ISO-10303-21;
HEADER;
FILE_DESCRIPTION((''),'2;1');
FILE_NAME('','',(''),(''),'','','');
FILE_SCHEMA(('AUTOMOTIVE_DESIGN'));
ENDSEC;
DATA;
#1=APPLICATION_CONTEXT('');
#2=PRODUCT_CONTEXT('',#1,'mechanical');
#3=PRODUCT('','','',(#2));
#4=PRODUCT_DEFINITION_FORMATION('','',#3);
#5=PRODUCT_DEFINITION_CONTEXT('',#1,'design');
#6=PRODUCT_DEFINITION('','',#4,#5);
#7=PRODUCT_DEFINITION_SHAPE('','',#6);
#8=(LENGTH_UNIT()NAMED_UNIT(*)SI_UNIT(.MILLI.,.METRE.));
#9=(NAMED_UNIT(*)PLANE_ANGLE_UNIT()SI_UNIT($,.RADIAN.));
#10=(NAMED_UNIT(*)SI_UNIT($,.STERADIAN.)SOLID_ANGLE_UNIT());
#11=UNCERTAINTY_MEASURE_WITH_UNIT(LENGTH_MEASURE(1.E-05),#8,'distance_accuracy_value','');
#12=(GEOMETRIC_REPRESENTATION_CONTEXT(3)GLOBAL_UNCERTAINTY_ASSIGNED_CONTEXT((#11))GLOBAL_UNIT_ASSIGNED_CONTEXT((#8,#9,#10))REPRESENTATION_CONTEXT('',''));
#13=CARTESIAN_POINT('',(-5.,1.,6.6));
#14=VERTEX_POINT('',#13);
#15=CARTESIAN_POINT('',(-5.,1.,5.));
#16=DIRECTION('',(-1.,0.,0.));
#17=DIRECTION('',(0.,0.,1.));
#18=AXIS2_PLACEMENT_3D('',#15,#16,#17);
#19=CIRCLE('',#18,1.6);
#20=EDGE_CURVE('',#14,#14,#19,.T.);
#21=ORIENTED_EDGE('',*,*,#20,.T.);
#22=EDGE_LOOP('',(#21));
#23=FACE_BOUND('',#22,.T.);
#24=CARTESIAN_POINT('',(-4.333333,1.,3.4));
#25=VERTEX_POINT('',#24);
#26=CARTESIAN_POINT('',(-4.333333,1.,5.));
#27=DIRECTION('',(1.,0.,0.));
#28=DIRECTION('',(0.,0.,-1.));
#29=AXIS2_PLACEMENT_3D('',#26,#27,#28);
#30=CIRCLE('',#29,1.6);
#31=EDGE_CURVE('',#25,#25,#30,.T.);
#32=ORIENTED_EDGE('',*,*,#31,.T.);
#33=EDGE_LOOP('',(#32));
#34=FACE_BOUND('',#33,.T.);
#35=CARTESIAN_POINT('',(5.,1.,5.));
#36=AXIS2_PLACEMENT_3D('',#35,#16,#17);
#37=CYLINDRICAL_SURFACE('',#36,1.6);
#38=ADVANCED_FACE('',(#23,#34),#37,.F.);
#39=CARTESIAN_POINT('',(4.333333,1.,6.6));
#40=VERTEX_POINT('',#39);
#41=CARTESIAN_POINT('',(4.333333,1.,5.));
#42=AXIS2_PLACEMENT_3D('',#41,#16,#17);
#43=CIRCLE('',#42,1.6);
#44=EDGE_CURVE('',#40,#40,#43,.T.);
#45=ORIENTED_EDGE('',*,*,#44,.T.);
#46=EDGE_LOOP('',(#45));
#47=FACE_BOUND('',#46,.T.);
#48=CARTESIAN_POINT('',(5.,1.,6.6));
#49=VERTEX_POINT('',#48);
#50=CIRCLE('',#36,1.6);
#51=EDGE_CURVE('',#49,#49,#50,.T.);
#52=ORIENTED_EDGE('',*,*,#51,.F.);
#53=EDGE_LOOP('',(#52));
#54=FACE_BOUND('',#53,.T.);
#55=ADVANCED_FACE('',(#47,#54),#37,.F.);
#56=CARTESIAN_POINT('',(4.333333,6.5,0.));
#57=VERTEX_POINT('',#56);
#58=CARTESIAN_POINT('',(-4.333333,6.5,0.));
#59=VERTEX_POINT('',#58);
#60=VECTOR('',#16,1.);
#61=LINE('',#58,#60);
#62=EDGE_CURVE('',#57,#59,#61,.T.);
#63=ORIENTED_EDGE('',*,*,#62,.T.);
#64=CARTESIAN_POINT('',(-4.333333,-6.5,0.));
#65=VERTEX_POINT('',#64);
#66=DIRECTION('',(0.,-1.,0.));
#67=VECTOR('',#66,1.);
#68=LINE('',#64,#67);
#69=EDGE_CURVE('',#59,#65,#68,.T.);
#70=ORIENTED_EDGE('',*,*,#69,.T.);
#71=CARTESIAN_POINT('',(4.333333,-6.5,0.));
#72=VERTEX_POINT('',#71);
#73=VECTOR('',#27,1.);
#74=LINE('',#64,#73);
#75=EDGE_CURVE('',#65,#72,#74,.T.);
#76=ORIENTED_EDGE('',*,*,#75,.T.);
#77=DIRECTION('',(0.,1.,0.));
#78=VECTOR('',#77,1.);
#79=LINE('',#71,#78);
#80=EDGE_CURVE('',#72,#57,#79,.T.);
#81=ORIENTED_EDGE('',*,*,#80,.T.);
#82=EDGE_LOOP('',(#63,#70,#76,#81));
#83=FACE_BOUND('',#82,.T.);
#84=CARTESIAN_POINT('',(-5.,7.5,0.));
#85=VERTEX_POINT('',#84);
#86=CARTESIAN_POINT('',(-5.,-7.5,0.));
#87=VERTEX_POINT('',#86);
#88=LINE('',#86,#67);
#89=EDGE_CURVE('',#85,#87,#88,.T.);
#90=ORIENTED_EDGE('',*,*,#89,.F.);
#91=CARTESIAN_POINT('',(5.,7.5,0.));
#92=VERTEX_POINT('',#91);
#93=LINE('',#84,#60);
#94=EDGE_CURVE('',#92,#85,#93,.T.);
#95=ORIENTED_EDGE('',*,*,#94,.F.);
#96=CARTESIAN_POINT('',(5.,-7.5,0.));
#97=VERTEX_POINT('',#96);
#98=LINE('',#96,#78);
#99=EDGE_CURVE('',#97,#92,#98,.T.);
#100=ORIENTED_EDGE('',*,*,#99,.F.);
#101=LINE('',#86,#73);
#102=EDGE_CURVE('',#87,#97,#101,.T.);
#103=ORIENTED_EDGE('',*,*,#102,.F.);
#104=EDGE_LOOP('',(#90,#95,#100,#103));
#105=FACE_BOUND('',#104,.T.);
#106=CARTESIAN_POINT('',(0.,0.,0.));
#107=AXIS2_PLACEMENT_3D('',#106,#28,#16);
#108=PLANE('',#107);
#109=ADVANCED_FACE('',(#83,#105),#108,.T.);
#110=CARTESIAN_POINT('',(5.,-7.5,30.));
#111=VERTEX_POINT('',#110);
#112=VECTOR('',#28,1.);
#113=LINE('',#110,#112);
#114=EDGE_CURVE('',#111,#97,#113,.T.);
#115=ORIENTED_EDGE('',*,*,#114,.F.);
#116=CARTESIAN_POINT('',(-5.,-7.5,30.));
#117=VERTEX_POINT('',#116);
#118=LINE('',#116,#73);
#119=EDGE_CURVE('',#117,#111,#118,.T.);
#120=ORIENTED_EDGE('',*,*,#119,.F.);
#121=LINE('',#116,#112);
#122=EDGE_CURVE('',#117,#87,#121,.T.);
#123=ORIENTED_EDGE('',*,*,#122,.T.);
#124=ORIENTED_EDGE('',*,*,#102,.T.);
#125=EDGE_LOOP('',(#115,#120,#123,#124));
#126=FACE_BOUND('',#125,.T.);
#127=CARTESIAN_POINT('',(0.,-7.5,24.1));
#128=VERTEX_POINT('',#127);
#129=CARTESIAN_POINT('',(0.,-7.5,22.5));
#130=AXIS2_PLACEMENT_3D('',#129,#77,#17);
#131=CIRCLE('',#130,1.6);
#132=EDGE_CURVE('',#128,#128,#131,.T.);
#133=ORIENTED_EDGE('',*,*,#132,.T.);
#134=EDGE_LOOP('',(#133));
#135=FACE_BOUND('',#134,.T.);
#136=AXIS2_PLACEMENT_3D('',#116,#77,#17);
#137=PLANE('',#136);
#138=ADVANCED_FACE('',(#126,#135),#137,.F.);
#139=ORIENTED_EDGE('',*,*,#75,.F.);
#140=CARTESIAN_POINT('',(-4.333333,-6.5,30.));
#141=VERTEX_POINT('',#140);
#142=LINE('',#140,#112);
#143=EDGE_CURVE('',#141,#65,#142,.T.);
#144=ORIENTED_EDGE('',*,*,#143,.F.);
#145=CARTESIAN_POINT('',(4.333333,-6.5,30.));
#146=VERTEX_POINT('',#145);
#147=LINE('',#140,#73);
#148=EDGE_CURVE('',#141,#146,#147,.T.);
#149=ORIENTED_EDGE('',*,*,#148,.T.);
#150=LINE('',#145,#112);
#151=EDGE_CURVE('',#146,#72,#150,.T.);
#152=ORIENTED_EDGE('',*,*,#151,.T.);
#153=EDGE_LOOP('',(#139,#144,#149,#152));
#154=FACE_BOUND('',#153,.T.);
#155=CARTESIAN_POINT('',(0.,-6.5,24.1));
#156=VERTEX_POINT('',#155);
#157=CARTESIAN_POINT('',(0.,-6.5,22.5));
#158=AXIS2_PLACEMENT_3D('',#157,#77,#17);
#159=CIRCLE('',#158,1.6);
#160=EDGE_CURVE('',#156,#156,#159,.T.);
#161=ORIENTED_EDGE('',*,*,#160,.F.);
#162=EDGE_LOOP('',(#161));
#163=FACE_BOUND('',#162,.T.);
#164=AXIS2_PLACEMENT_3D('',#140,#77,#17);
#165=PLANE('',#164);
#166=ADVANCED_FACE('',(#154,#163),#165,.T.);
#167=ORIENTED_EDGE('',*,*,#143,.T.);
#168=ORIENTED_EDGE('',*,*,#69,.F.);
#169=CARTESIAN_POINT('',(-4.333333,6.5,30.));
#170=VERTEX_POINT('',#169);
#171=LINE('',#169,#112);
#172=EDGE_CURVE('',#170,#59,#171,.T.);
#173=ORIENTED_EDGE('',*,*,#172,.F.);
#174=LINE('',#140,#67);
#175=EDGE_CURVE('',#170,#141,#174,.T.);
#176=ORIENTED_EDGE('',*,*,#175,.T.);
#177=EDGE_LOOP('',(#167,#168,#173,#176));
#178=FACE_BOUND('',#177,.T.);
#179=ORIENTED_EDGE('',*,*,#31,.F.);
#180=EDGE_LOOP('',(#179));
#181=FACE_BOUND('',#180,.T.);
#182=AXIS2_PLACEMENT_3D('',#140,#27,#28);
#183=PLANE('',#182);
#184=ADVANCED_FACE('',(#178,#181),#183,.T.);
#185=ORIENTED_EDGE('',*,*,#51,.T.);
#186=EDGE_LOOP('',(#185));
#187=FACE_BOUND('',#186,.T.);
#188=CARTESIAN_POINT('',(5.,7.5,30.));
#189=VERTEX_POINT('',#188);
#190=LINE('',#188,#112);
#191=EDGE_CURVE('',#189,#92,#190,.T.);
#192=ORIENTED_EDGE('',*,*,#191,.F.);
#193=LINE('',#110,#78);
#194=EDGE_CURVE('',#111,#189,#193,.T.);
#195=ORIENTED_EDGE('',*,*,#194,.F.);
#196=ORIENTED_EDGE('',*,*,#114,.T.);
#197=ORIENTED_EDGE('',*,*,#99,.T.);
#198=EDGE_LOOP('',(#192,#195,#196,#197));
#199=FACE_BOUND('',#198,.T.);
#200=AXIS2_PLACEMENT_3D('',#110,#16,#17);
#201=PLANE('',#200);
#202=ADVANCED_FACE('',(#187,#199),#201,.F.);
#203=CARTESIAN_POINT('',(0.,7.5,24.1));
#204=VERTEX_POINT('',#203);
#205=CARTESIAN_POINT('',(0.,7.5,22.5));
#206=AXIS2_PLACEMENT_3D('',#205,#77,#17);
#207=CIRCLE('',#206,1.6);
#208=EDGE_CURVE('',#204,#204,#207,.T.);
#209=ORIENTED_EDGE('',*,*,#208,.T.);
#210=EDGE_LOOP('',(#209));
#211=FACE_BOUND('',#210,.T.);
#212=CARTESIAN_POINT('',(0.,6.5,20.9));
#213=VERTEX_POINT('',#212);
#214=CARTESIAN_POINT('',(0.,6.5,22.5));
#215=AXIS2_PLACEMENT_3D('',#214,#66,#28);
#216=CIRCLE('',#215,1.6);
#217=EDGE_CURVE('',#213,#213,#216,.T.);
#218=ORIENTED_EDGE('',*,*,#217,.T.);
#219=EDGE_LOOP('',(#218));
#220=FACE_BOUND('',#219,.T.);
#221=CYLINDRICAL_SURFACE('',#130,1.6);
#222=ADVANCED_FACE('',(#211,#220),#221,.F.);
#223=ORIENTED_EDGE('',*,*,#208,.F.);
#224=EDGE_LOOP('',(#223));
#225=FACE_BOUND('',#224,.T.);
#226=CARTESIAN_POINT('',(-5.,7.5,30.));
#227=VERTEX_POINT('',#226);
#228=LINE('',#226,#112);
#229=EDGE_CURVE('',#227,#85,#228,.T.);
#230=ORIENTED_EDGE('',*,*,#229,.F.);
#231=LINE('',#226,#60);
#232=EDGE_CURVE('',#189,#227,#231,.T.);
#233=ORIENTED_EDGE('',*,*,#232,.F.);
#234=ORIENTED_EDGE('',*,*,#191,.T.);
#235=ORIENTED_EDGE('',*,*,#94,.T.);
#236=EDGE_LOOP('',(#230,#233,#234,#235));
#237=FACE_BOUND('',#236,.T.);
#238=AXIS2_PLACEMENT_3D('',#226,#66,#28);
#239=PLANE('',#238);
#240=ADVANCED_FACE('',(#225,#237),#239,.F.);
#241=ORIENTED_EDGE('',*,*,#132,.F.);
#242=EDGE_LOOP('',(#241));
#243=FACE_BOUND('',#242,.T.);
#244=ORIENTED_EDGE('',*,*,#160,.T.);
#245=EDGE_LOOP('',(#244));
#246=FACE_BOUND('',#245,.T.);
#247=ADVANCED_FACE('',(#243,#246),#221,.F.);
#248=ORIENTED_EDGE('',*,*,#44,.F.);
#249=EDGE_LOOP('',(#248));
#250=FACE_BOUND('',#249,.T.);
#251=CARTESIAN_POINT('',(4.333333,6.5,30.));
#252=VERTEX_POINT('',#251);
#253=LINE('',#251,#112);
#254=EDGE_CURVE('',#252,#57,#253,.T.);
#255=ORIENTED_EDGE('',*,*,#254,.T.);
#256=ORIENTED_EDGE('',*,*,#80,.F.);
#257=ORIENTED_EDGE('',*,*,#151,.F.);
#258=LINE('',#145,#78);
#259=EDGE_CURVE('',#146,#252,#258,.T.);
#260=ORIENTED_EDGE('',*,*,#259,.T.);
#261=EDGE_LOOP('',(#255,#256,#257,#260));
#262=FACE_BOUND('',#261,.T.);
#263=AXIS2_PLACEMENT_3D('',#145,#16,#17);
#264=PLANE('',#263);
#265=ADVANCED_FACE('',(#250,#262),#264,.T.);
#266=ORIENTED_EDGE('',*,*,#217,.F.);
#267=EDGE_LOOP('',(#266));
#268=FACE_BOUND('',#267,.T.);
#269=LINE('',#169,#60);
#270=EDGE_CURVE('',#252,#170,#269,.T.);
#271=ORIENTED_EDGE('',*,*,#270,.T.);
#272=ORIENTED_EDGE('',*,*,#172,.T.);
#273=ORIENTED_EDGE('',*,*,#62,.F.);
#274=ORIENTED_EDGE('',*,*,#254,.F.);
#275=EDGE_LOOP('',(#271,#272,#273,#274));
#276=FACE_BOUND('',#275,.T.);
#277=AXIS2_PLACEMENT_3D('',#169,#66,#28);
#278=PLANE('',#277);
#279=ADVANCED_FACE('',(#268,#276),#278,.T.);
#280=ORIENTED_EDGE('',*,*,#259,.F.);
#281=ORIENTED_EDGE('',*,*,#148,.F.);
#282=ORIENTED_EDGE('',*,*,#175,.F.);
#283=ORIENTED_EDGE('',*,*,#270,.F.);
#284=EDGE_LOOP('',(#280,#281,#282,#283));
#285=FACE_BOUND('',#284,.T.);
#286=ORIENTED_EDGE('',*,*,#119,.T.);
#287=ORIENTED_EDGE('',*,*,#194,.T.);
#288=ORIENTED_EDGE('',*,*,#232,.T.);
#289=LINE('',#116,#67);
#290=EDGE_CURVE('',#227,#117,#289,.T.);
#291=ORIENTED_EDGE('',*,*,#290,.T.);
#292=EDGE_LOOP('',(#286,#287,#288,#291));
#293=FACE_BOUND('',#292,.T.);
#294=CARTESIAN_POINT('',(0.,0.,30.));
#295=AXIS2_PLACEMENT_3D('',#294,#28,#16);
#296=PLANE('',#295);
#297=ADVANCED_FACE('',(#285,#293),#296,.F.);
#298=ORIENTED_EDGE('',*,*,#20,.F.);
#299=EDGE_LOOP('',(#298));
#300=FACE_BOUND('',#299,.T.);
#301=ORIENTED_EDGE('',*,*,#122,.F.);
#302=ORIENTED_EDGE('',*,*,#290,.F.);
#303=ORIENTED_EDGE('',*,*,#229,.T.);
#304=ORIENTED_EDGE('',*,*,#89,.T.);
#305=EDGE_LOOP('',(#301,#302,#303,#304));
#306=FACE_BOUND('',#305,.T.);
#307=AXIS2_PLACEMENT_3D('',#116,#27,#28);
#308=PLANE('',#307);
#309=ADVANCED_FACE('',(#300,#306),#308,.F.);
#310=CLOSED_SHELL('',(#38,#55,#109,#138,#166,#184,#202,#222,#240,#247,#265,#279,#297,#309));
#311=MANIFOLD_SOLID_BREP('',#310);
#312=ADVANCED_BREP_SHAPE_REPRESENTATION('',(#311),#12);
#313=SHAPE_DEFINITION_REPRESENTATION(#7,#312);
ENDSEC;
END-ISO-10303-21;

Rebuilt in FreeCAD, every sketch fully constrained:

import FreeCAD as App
import Part
import Sketcher

V = App.Vector
Q = App.Units.Quantity

doc = App.newDocument("Part")
body = doc.addObject("PartDesign::Body", "Body")

# Sketch on XY plane
sketch1 = doc.addObject("Sketcher::SketchObject", "Sketch")
body.addObject(sketch1)
sketch1.AttachmentSupport = (doc.XY_Plane, [""])
sketch1.MapMode = "FlatFace"
sketch1.addGeometry(Part.LineSegment(V(-5, 8, 0), V(-5, -8, 0)), False)
sketch1.addGeometry(Part.LineSegment(V(-5, -8, 0), V(5, -8, 0)), False)
sketch1.addGeometry(Part.LineSegment(V(5, -8, 0), V(5, 8, 0)), False)
sketch1.addGeometry(Part.LineSegment(V(5, 8, 0), V(-5, 8, 0)), False)
sketch1.addGeometry(Part.LineSegment(V(4, -6, 0), V(-4, -6, 0)), False)
sketch1.addGeometry(Part.LineSegment(V(-4, -6, 0), V(-4, 6, 0)), False)
sketch1.addGeometry(Part.LineSegment(V(-4, 6, 0), V(4, 6, 0)), False)
sketch1.addGeometry(Part.LineSegment(V(4, 6, 0), V(4, -6, 0)), False)
sketch1.addConstraint(Sketcher.Constraint("Coincident", 0, 2, 1, 1))
sketch1.addConstraint(Sketcher.Constraint("Coincident", 1, 2, 2, 1))
sketch1.addConstraint(Sketcher.Constraint("Coincident", 2, 2, 3, 1))
sketch1.addConstraint(Sketcher.Constraint("Coincident", 3, 2, 0, 1))
sketch1.addConstraint(Sketcher.Constraint("Coincident", 4, 2, 5, 1))
sketch1.addConstraint(Sketcher.Constraint("Coincident", 5, 2, 6, 1))
sketch1.addConstraint(Sketcher.Constraint("Coincident", 6, 2, 7, 1))
sketch1.addConstraint(Sketcher.Constraint("Coincident", 7, 2, 4, 1))
sketch1.addConstraint(Sketcher.Constraint("Vertical", 0))
sketch1.addConstraint(Sketcher.Constraint("Horizontal", 1))
sketch1.addConstraint(Sketcher.Constraint("Vertical", 2))
sketch1.addConstraint(Sketcher.Constraint("Horizontal", 3))
sketch1.addConstraint(Sketcher.Constraint("Horizontal", 4))
sketch1.addConstraint(Sketcher.Constraint("Vertical", 5))
sketch1.addConstraint(Sketcher.Constraint("Horizontal", 6))
sketch1.addConstraint(Sketcher.Constraint("Vertical", 7))
sketch1.addConstraint(Sketcher.Constraint("Symmetric", 0, 2, 2, 2, -1, 1))
sketch1.addConstraint(Sketcher.Constraint("Symmetric", 4, 2, 6, 2, -1, 1))
sketch1.addConstraint(Sketcher.Constraint("DistanceX", 1, 1, 1, 2, Q("10 mm")))
sketch1.addConstraint(Sketcher.Constraint("DistanceY", 0, 2, 0, 1, Q("15 mm")))
sketch1.addConstraint(Sketcher.Constraint("DistanceY", 5, 1, 5, 2, Q("13 mm")))
sketch1.addConstraint(Sketcher.Constraint("DistanceX", 4, 2, 4, 1, Q("8.666667 mm")))
pad1 = doc.addObject("PartDesign::Pad", "Pad")
body.addObject(pad1)
pad1.Profile = sketch1
pad1.Length = 30

# Sketch on XZ plane
sketch2 = doc.addObject("Sketcher::SketchObject", "Sketch001")
body.addObject(sketch2)
sketch2.AttachmentSupport = (doc.XZ_Plane, [""])
sketch2.MapMode = "FlatFace"
sketch2.AttachmentOffset = App.Placement(V(0, 0, -7.5), App.Rotation())
sketch2.addGeometry(Part.Circle(V(0, 22.5, 0), V(0, 0, 1), 1.6), False)
sketch2.addConstraint(Sketcher.Constraint("PointOnObject", 0, 3, -2))
sketch2.addConstraint(Sketcher.Constraint("Diameter", 0, Q("3.2 mm")))
sketch2.addConstraint(Sketcher.Constraint("DistanceY", -1, 1, 0, 3, Q("22.5 mm")))
pocket1 = doc.addObject("PartDesign::Pocket", "Pocket")
body.addObject(pocket1)
pocket1.Profile = sketch2
pocket1.Type = "ThroughAll"
pocket1.Reversed = True

# Sketch on YZ plane
sketch3 = doc.addObject("Sketcher::SketchObject", "Sketch002")
body.addObject(sketch3)
sketch3.AttachmentSupport = (doc.YZ_Plane, [""])
sketch3.MapMode = "FlatFace"
sketch3.AttachmentOffset = App.Placement(V(0, 0, -5), App.Rotation())
sketch3.addGeometry(Part.Circle(V(1, 5, 0), V(0, 0, 1), 1.6), False)
sketch3.addConstraint(Sketcher.Constraint("Diameter", 0, Q("3.2 mm")))
sketch3.addConstraint(Sketcher.Constraint("DistanceX", -1, 1, 0, 3, Q("1 mm")))
sketch3.addConstraint(Sketcher.Constraint("DistanceY", -1, 1, 0, 3, Q("5 mm")))
pocket2 = doc.addObject("PartDesign::Pocket", "Pocket001")
body.addObject(pocket2)
pocket2.Profile = sketch3
pocket2.Type = "ThroughAll"
pocket2.Reversed = True

doc.recompute()
